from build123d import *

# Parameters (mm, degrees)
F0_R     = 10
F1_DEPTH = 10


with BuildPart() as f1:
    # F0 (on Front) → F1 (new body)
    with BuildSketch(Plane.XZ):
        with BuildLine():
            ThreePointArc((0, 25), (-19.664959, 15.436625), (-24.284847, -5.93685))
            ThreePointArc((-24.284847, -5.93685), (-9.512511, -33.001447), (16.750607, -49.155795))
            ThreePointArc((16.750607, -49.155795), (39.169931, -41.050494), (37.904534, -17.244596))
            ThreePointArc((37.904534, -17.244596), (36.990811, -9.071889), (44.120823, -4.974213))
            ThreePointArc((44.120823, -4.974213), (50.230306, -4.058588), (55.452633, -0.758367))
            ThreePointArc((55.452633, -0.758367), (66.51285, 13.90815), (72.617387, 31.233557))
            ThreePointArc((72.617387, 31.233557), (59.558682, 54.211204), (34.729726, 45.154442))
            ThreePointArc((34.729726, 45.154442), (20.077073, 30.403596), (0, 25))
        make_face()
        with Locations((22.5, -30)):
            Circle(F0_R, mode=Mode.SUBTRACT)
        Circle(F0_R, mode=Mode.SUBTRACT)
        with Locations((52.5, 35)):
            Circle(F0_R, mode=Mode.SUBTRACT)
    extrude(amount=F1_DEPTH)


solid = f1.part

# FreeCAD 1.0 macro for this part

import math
import FreeCAD as App
import Part
import Sketcher

V = App.Vector
Q = App.Units.Quantity

doc = App.newDocument("Part")
body = doc.addObject("PartDesign::Body", "Body")

# Sketch on XZ plane
sketch1 = body.newObject("Sketcher::SketchObject", "Sketch")
sketch1.AttachmentSupport = (doc.getObject("XZ_Plane"), [""])
sketch1.MapMode = "FlatFace"
sketch1.addGeometry([
    Part.ArcOfCircle(Part.Circle(V(0, 0.000001, 0), V(0, 0, 1), 24.999999), math.radians(89.999999), math.radians(193.737503)),  # 0
    Part.ArcOfCircle(Part.Circle(V(33.998785, 8.311588, 0), V(0, 0, 1), 59.999998), math.radians(-166.2625), math.radians(-106.706528)),  # 1
    Part.ArcOfCircle(Part.Circle(V(22.5, -30, 0), V(0, 0, 1), 20), math.radians(-106.70653), math.radians(39.625751)),  # 2
    Part.ArcOfCircle(Part.Circle(V(43.681234, -12.461319, 0), V(0, 0, 1), 7.5), math.radians(86.639863), math.radians(219.625751)),  # 3
    Part.ArcOfCircle(Part.Circle(V(44.999999, 10.000002, 0), V(0, 0, 1), 15.000002), math.radians(-93.36013), math.radians(-45.825802)),  # 4
    Part.ArcOfCircle(Part.Circle(V(13.642102, 42.275102, 0), V(0, 0, 1), 59.999999), math.radians(-45.825802), math.radians(-10.604337)),  # 5
    Part.ArcOfCircle(Part.Circle(V(52.5, 35, 0), V(0, 0, 1), 20.466933), math.radians(-10.604338), math.radians(150.25512)),  # 6
    Part.ArcOfCircle(Part.Circle(V(0.000001, 64.999999, 0), V(0, 0, 1), 39.999999), math.radians(-90.000001), math.radians(-29.744882)),  # 7
    Part.Circle(V(22.5, -30, 0), V(0, 0, 1), 10),  # 8
    Part.Circle(V(0, 0, 0), V(0, 0, 1), 10),  # 9
    Part.Circle(V(52.5, 35, 0), V(0, 0, 1), 10),  # 10
], False)
sketch1.addConstraint([
    Sketcher.Constraint("Tangent", 0, 2, 1, 1),
    Sketcher.Constraint("Tangent", 1, 2, 2, 1),
    Sketcher.Constraint("Tangent", 2, 2, 3, 2),
    Sketcher.Constraint("Tangent", 3, 1, 4, 1),
    Sketcher.Constraint("Tangent", 4, 2, 5, 1),
    Sketcher.Constraint("Tangent", 5, 2, 6, 1),
    Sketcher.Constraint("Tangent", 6, 2, 7, 2),
    Sketcher.Constraint("Tangent", 7, 1, 0, 1),
    Sketcher.Constraint("Coincident", 0, 3, -1, 1),
    Sketcher.Constraint("Coincident", 9, 3, -1, 1),
    Sketcher.Constraint("Coincident", 8, 3, 2, 3),
    Sketcher.Constraint("Coincident", 10, 3, 6, 3),
    Sketcher.Constraint("Equal", 1, 5),
    Sketcher.Constraint("Equal", 8, 9),
    Sketcher.Constraint("Equal", 9, 10),
    Sketcher.Constraint("PointOnObject", 7, 3, -2),
    Sketcher.Constraint("Diameter", 8, Q("20 mm")),
    Sketcher.Constraint("Radius", 0, Q("24.999999 mm")),
    Sketcher.Constraint("Radius", 1, Q("59.999998 mm")),
    Sketcher.Constraint("Radius", 2, Q("20 mm")),
    Sketcher.Constraint("Radius", 4, Q("15.000002 mm")),
    Sketcher.Constraint("Radius", 7, Q("39.999999 mm")),
    Sketcher.Constraint("Radius", 3, Q("7.5 mm")),
    Sketcher.Constraint("DistanceY", 2, 3, -1, 1, Q("30 mm")),
    Sketcher.Constraint("DistanceX", -1, 1, 4, 3, Q("44.999999 mm")),
    Sketcher.Constraint("DistanceY", -1, 1, 4, 3, Q("10.000002 mm")),
    Sketcher.Constraint("DistanceY", -1, 1, 6, 3, Q("35 mm")),
    Sketcher.Constraint("DistanceX", -1, 1, 2, 3, Q("22.5 mm")),
    Sketcher.Constraint("DistanceX", -1, 1, 6, 3, Q("52.5 mm")),
])
pad1 = body.newObject("PartDesign::Pad", "Pad")
pad1.Profile = sketch1
pad1.Length = 10

doc.recompute()
